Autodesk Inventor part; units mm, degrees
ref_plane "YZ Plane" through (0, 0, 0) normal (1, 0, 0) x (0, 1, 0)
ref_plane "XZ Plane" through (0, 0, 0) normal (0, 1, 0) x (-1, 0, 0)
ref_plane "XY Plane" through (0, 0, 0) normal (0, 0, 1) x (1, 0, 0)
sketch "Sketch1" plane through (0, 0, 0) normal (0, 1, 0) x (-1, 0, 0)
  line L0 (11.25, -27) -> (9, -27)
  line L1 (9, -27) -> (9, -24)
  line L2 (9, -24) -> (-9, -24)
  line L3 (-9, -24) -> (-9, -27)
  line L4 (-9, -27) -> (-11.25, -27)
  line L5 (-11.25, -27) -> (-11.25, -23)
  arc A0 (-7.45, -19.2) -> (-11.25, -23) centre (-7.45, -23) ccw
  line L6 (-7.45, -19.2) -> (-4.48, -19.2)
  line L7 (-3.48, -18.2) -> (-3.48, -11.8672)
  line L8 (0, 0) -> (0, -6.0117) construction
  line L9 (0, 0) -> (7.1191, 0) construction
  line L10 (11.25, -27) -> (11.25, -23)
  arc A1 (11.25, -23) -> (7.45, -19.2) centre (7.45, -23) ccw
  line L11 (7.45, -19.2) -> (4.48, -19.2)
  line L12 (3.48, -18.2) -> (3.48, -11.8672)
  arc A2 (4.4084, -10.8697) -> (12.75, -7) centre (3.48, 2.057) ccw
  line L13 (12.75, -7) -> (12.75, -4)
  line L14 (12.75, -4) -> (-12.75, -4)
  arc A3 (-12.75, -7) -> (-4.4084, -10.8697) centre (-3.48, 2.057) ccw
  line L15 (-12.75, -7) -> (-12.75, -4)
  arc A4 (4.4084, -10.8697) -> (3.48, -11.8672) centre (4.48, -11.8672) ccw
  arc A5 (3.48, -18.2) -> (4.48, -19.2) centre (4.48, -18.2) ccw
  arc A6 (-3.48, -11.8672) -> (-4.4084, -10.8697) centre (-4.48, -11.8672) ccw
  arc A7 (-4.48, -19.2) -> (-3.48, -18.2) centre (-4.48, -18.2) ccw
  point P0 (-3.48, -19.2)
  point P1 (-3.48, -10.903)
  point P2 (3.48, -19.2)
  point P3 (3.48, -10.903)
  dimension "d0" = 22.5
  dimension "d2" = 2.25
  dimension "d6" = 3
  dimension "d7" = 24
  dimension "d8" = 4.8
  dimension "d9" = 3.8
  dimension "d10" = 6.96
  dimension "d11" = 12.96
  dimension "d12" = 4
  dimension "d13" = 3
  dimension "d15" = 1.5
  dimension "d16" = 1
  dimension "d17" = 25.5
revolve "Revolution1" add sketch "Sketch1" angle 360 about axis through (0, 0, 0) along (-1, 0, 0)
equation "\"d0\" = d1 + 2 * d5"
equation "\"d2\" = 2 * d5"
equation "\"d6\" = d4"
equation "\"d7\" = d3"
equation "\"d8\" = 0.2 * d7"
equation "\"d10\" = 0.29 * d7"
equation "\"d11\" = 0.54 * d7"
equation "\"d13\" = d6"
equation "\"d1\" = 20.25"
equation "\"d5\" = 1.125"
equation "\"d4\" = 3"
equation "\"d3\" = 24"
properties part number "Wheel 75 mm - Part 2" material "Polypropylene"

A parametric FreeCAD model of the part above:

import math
import FreeCAD as App
import Part
import Sketcher
Q = App.Units.Quantity

doc = App.newDocument("Part")
params = doc.addObject("Spreadsheet::Sheet", "Params")
for row, (alias, value) in enumerate([
    ("sketch1_radius", "1 mm"),
    ("sketch1_radius2", "3.8 mm"),
    ("sketch1_height", "4 mm"),
    ("sketch1_height2", "3 mm"),
    ("sketch1_radius3", "12.96 mm"),
    ("revolution_angle", "360 deg"),
], start=1):
    params.set(f"A{row}", alias)
    params.set(f"B{row}", "=" + value)
    params.setAlias(f"B{row}", alias)

body = doc.addObject("PartDesign::Body", "Body")

# Sketch on XZ plane
sketch1 = body.newObject("Sketcher::SketchObject", "Sketch")
sketch1.AttachmentSupport = (doc.getObject("XZ_Plane"), [""])
sketch1.MapMode = "FlatFace"
sketch1.addGeometry(Part.LineSegment(App.Vector(-9, -27, 0), App.Vector(-11.2, -27, 0)), False)
sketch1.addGeometry(Part.LineSegment(App.Vector(-11.2, -27, 0), App.Vector(-11.2, -23, 0)), False)
sketch1.addGeometry(Part.ArcOfCircle(Part.Circle(App.Vector(-7.5, -23, 0), App.Vector(0, 0, 1), 3.8), math.radians(90), math.radians(180)), False)
sketch1.addGeometry(Part.LineSegment(App.Vector(-7.5, -19.2, 0), App.Vector(-4.5, -19.2, 0)), False)
sketch1.addGeometry(Part.ArcOfCircle(Part.Circle(App.Vector(-4.5, -18.2, 0), App.Vector(0, 0, 1), 1), math.radians(-90), math.radians(0)), False)
sketch1.addGeometry(Part.LineSegment(App.Vector(-3.5, -18.2, 0), App.Vector(-3.5, -11.9, 0)), False)
sketch1.addGeometry(Part.ArcOfCircle(Part.Circle(App.Vector(-4.5, -11.9, 0), App.Vector(0, 0, 1), 1), math.radians(0), math.radians(86)), False)
sketch1.addGeometry(Part.ArcOfCircle(Part.Circle(App.Vector(-3.5, 2.1, 0), App.Vector(0, 0, 1), 13), math.radians(-136), math.radians(-94)), False)
sketch1.addGeometry(Part.LineSegment(App.Vector(-12.8, -7, 0), App.Vector(-12.8, -4, 0)), False)
sketch1.addGeometry(Part.LineSegment(App.Vector(-12.8, -4, 0), App.Vector(12.8, -4, 0)), False)
sketch1.addGeometry(Part.LineSegment(App.Vector(12.8, -4, 0), App.Vector(12.8, -7, 0)), False)
sketch1.addGeometry(Part.ArcOfCircle(Part.Circle(App.Vector(3.5, 2.1, 0), App.Vector(0, 0, 1), 13), math.radians(-86), math.radians(-44)), False)
sketch1.addGeometry(Part.ArcOfCircle(Part.Circle(App.Vector(4.5, -11.9, 0), App.Vector(0, 0, 1), 1), math.radians(94), math.radians(180)), False)
sketch1.addGeometry(Part.LineSegment(App.Vector(3.5, -11.9, 0), App.Vector(3.5, -18.2, 0)), False)
sketch1.addGeometry(Part.ArcOfCircle(Part.Circle(App.Vector(4.5, -18.2, 0), App.Vector(0, 0, 1), 1), math.radians(180), math.radians(270)), False)
sketch1.addGeometry(Part.LineSegment(App.Vector(4.5, -19.2, 0), App.Vector(7.5, -19.2, 0)), False)
sketch1.addGeometry(Part.ArcOfCircle(Part.Circle(App.Vector(7.5, -23, 0), App.Vector(0, 0, 1), 3.8), math.radians(0), math.radians(90)), False)
sketch1.addGeometry(Part.LineSegment(App.Vector(11.2, -23, 0), App.Vector(11.2, -27, 0)), False)
sketch1.addGeometry(Part.LineSegment(App.Vector(11.2, -27, 0), App.Vector(9, -27, 0)), False)
sketch1.addGeometry(Part.LineSegment(App.Vector(9, -27, 0), App.Vector(9, -24, 0)), False)
sketch1.addGeometry(Part.LineSegment(App.Vector(9, -24, 0), App.Vector(-9, -24, 0)), False)
sketch1.addGeometry(Part.LineSegment(App.Vector(-9, -24, 0), App.Vector(-9, -27, 0)), False)
sketch1.addConstraint(Sketcher.Constraint("Coincident", 0, 2, 1, 1))
sketch1.addConstraint(Sketcher.Constraint("Tangent", 1, 2, 2, 2))
sketch1.addConstraint(Sketcher.Constraint("Tangent", 2, 1, 3, 1))
sketch1.addConstraint(Sketcher.Constraint("Tangent", 3, 2, 4, 1))
sketch1.addConstraint(Sketcher.Constraint("Tangent", 4, 2, 5, 1))
sketch1.addConstraint(Sketcher.Constraint("Tangent", 5, 2, 6, 1))
sketch1.addConstraint(Sketcher.Constraint("Tangent", 6, 2, 7, 2))
sketch1.addConstraint(Sketcher.Constraint("Coincident", 7, 1, 8, 1))
sketch1.addConstraint(Sketcher.Constraint("Coincident", 8, 2, 9, 1))
sketch1.addConstraint(Sketcher.Constraint("Coincident", 9, 2, 10, 1))
sketch1.addConstraint(Sketcher.Constraint("Coincident", 10, 2, 11, 2))
sketch1.addConstraint(Sketcher.Constraint("Tangent", 11, 1, 12, 1))
sketch1.addConstraint(Sketcher.Constraint("Tangent", 12, 2, 13, 1))
sketch1.addConstraint(Sketcher.Constraint("Tangent", 13, 2, 14, 1))
sketch1.addConstraint(Sketcher.Constraint("Tangent", 14, 2, 15, 1))
sketch1.addConstraint(Sketcher.Constraint("Tangent", 15, 2, 16, 2))
sketch1.addConstraint(Sketcher.Constraint("Tangent", 16, 1, 17, 1))
sketch1.addConstraint(Sketcher.Constraint("Coincident", 17, 2, 18, 1))
sketch1.addConstraint(Sketcher.Constraint("Coincident", 18, 2, 19, 1))
sketch1.addConstraint(Sketcher.Constraint("Coincident", 19, 2, 20, 1))
sketch1.addConstraint(Sketcher.Constraint("Coincident", 20, 2, 21, 1))
sketch1.addConstraint(Sketcher.Constraint("Coincident", 21, 2, 0, 1))
sketch1.addConstraint(Sketcher.Constraint("Horizontal", 0))
sketch1.addConstraint(Sketcher.Constraint("Vertical", 1))
sketch1.addConstraint(Sketcher.Constraint("Horizontal", 3))
sketch1.addConstraint(Sketcher.Constraint("Vertical", 5))
sketch1.addConstraint(Sketcher.Constraint("Vertical", 8))
sketch1.addConstraint(Sketcher.Constraint("Horizontal", 9))
sketch1.addConstraint(Sketcher.Constraint("Vertical", 10))
sketch1.addConstraint(Sketcher.Constraint("Vertical", 13))
sketch1.addConstraint(Sketcher.Constraint("Horizontal", 15))
sketch1.addConstraint(Sketcher.Constraint("Vertical", 17))
sketch1.addConstraint(Sketcher.Constraint("Horizontal", 18))
sketch1.addConstraint(Sketcher.Constraint("Vertical", 19))
sketch1.addConstraint(Sketcher.Constraint("Horizontal", 20))
sketch1.addConstraint(Sketcher.Constraint("Vertical", 21))
sketch1.addConstraint(Sketcher.Constraint("Equal", 4, 6))
sketch1.addConstraint(Sketcher.Constraint("Equal", 7, 11))
sketch1.addConstraint(Sketcher.Constraint("Equal", 6, 12))
sketch1.addConstraint(Sketcher.Constraint("Equal", 12, 14))
sketch1.addConstraint(Sketcher.Constraint("Equal", 2, 16))
sketch1.addConstraint(Sketcher.Constraint("Symmetric", 7, 3, 11, 3, -2))
sketch1.addConstraint(Sketcher.Constraint("Symmetric", 4, 3, 14, 3, -2))
sketch1.addConstraint(Sketcher.Constraint("Symmetric", 0, 2, 17, 2, -2))
sketch1.addConstraint(Sketcher.Constraint("Horizontal", 7, 1, 10, 2))
sketch1.addConstraint(Sketcher.Constraint("Vertical", 7, 3, 4, 2))
sketch1.addConstraint(Sketcher.Constraint("Equal", 0, 18))
sketch1.addConstraint(Sketcher.Constraint("Equal", 10, 19))
sketch1.addConstraint(Sketcher.Constraint("Radius", 4, Q("1 mm")))
sketch1.addConstraint(Sketcher.Constraint("Radius", 2, Q("3.8 mm")))
sketch1.addConstraint(Sketcher.Constraint("DistanceY", 1, 1, 1, 2, Q("4 mm")))
sketch1.addConstraint(Sketcher.Constraint("DistanceY", 8, 1, 8, 2, Q("3 mm")))
sketch1.addConstraint(Sketcher.Constraint("Radius", 7, Q("12.96 mm")))
sketch1.addConstraint(Sketcher.Constraint("DistanceX", 9, 1, 9, 2, Q("25.5 mm")))
sketch1.addConstraint(Sketcher.Constraint("DistanceY", 8, 2, -1, 1, Q("4 mm")))
sketch1.addConstraint(Sketcher.Constraint("DistanceY", 19, 2, -1, 1, Q("24 mm")))
sketch1.addConstraint(Sketcher.Constraint("DistanceX", 0, 2, 0, 1, Q("2.25 mm")))
sketch1.addConstraint(Sketcher.Constraint("DistanceX", 20, 2, 20, 1, Q("18 mm")))
sketch1.addConstraint(Sketcher.Constraint("DistanceX", 7, 3, 11, 3, Q("6.96 mm")))
sketch1.setExpression("Constraints[48]", "Params.sketch1_radius")
sketch1.setExpression("Constraints[49]", "Params.sketch1_radius2")
sketch1.setExpression("Constraints[50]", "Params.sketch1_height")
sketch1.setExpression("Constraints[51]", "Params.sketch1_height2")
sketch1.setExpression("Constraints[52]", "Params.sketch1_radius3")
revolution = body.newObject("PartDesign::Revolution", "Revolution")
revolution.Profile = sketch1
revolution.ReferenceAxis = (sketch1, ["H_Axis"])
revolution.setExpression("Angle", "Params.revolution_angle")

doc.recompute()
